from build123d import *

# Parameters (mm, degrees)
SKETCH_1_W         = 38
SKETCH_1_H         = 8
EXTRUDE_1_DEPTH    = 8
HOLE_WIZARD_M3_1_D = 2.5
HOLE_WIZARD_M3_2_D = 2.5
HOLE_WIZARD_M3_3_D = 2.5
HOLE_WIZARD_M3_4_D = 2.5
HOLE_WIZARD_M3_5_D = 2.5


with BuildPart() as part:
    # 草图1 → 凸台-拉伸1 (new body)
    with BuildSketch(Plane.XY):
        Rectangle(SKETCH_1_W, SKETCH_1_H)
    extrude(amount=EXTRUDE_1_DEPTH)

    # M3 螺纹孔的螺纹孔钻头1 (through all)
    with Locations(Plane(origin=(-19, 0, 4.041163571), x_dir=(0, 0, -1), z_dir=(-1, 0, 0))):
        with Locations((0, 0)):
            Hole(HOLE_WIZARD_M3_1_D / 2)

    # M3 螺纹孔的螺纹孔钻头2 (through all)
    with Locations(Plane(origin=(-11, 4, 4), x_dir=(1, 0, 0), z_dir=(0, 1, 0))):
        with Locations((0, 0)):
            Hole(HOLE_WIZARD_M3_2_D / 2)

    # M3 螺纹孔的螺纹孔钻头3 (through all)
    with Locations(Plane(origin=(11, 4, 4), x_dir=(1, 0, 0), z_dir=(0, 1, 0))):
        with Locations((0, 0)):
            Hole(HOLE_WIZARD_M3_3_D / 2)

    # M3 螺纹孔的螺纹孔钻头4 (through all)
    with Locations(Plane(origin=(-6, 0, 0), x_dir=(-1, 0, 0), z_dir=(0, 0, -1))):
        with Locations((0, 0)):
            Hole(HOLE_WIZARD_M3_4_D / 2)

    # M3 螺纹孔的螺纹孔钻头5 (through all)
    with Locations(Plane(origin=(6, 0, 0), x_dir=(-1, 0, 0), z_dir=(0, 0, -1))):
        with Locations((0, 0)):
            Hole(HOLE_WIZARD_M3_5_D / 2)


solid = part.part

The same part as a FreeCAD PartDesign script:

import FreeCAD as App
import Part
import Sketcher


def add_polygon(sketch, points):
    """Adds a closed chain of lines whose ends are joined by coincident constraints."""
    first, n = sketch.GeometryCount, len(points)
    for a, b in zip(points, points[1:] + points[:1]):
        sketch.addGeometry(Part.LineSegment(App.Vector(*a, 0), App.Vector(*b, 0)), False)
    for i in range(n):
        sketch.addConstraint(Sketcher.Constraint("Coincident", first + i, 2, first + (i + 1) % n, 1))

doc = App.newDocument("Part")
body = doc.addObject("PartDesign::Body", "Body")

sketch1 = doc.addObject("Sketcher::SketchObject", "Sketch")
body.addObject(sketch1)
sketch1.AttachmentSupport = (doc.XY_Plane, [""])
sketch1.MapMode = "FlatFace"
add_polygon(sketch1, [(-19, 4), (-19, -4), (19, -4), (19, 4)])
sketch1.addConstraint(Sketcher.Constraint("Vertical", 0))
sketch1.addConstraint(Sketcher.Constraint("Horizontal", 1))
sketch1.addConstraint(Sketcher.Constraint("Vertical", 2))
sketch1.addConstraint(Sketcher.Constraint("Horizontal", 3))
sketch1.addConstraint(Sketcher.Constraint("Symmetric", 0, 2, 2, 2, -1, 1))
sketch1.addConstraint(Sketcher.Constraint("DistanceX", 1, 1, 1, 2, 38.0))
sketch1.addConstraint(Sketcher.Constraint("DistanceY", 0, 2, 0, 1, 8.0))
pad1 = doc.addObject("PartDesign::Pad", "Pad")
body.addObject(pad1)
pad1.Profile = sketch1
pad1.Length = 8

sketch2 = doc.addObject("Sketcher::SketchObject", "Sketch001")
body.addObject(sketch2)
sketch2.AttachmentSupport = (doc.YZ_Plane, [""])
sketch2.MapMode = "FlatFace"
sketch2.AttachmentOffset = App.Placement(App.Vector(0, 0, -19), App.Rotation())
sketch2.addGeometry(Part.Circle(App.Vector(0, 4.041164, 0), App.Vector(0, 0, 1), 1.25), False)
sketch2.addConstraint(Sketcher.Constraint("PointOnObject", 0, 3, -2))
sketch2.addConstraint(Sketcher.Constraint("Diameter", 0, 2.5))
sketch2.addConstraint(Sketcher.Constraint("DistanceY", -1, 1, 0, 3, 4.041164))
doc.recompute()
hole = doc.addObject("PartDesign::Hole", "Hole")
body.addObject(hole)
hole.Profile = sketch2
hole.ThreadType = "None"
hole.Diameter = 2.5
hole.DepthType = "ThroughAll"
hole.Reversed = True

sketch3 = doc.addObject("Sketcher::SketchObject", "Sketch002")
body.addObject(sketch3)
sketch3.AttachmentSupport = (doc.XZ_Plane, [""])
sketch3.MapMode = "FlatFace"
sketch3.AttachmentOffset = App.Placement(App.Vector(0, 0, -4), App.Rotation())
sketch3.addGeometry(Part.Circle(App.Vector(-11, 4, 0), App.Vector(0, 0, 1), 1.25), False)
sketch3.addConstraint(Sketcher.Constraint("Diameter", 0, 2.5))
sketch3.addConstraint(Sketcher.Constraint("DistanceX", 0, 3, -1, 1, 11.0))
sketch3.addConstraint(Sketcher.Constraint("DistanceY", -1, 1, 0, 3, 4.0))
doc.recompute()
hole2 = doc.addObject("PartDesign::Hole", "Hole001")
body.addObject(hole2)
hole2.Profile = sketch3
hole2.ThreadType = "None"
hole2.Diameter = 2.5
hole2.DepthType = "ThroughAll"
hole2.Reversed = True

sketch4 = doc.addObject("Sketcher::SketchObject", "Sketch003")
body.addObject(sketch4)
sketch4.AttachmentSupport = (doc.XZ_Plane, [""])
sketch4.MapMode = "FlatFace"
sketch4.AttachmentOffset = App.Placement(App.Vector(0, 0, -4), App.Rotation())
sketch4.addGeometry(Part.Circle(App.Vector(11, 4, 0), App.Vector(0, 0, 1), 1.25), False)
sketch4.addConstraint(Sketcher.Constraint("Diameter", 0, 2.5))
sketch4.addConstraint(Sketcher.Constraint("DistanceX", -1, 1, 0, 3, 11.0))
sketch4.addConstraint(Sketcher.Constraint("DistanceY", -1, 1, 0, 3, 4.0))
doc.recompute()
hole3 = doc.addObject("PartDesign::Hole", "Hole002")
body.addObject(hole3)
hole3.Profile = sketch4
hole3.ThreadType = "None"
hole3.Diameter = 2.5
hole3.DepthType = "ThroughAll"
hole3.Reversed = True

sketch5 = doc.addObject("Sketcher::SketchObject", "Sketch004")
body.addObject(sketch5)
sketch5.AttachmentSupport = (doc.XY_Plane, [""])
sketch5.MapMode = "FlatFace"
sketch5.addGeometry(Part.Circle(App.Vector(-6, 0, 0), App.Vector(0, 0, 1), 1.25), False)
sketch5.addConstraint(Sketcher.Constraint("PointOnObject", 0, 3, -1))
sketch5.addConstraint(Sketcher.Constraint("Diameter", 0, 2.5))
sketch5.addConstraint(Sketcher.Constraint("DistanceX", 0, 3, -1, 1, 6.0))
doc.recompute()
hole4 = doc.addObject("PartDesign::Hole", "Hole003")
body.addObject(hole4)
hole4.Profile = sketch5
hole4.ThreadType = "None"
hole4.Diameter = 2.5
hole4.DepthType = "ThroughAll"
hole4.Reversed = True

sketch6 = doc.addObject("Sketcher::SketchObject", "Sketch005")
body.addObject(sketch6)
sketch6.AttachmentSupport = (doc.XY_Plane, [""])
sketch6.MapMode = "FlatFace"
sketch6.addGeometry(Part.Circle(App.Vector(6, 0, 0), App.Vector(0, 0, 1), 1.25), False)
sketch6.addConstraint(Sketcher.Constraint("PointOnObject", 0, 3, -1))
sketch6.addConstraint(Sketcher.Constraint("Diameter", 0, 2.5))
sketch6.addConstraint(Sketcher.Constraint("DistanceX", -1, 1, 0, 3, 6.0))
doc.recompute()
hole5 = doc.addObject("PartDesign::Hole", "Hole004")
body.addObject(hole5)
hole5.Profile = sketch6
hole5.ThreadType = "None"
hole5.Diameter = 2.5
hole5.DepthType = "ThroughAll"
hole5.Reversed = True

doc.recompute()
